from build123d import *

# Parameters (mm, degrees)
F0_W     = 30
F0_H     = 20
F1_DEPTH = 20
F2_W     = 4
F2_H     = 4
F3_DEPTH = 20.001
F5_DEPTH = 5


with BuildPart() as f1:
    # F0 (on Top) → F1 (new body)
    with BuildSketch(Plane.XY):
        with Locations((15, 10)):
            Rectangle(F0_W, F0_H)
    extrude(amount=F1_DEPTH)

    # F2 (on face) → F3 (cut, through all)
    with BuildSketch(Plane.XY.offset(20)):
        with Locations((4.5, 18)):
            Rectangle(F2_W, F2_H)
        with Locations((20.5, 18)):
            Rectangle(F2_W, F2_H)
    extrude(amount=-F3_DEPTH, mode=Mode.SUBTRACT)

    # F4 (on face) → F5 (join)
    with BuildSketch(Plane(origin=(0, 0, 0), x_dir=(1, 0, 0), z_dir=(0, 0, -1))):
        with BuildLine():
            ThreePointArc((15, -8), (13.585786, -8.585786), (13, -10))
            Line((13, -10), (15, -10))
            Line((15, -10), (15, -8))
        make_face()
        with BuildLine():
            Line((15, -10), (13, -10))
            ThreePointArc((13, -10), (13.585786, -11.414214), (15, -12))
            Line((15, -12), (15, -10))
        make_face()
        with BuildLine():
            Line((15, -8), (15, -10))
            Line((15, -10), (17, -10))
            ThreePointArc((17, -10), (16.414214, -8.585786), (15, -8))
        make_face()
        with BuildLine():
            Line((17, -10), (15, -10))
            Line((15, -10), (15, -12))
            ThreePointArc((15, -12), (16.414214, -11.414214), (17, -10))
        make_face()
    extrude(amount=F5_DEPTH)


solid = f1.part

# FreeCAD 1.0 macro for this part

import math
import FreeCAD as App
import Part
import Sketcher
from FreeCAD import Vector
Q = App.Units.Quantity


def add_polygon(sketch, points):
    """Adds a closed chain of lines whose ends are joined by coincident constraints."""
    first, n = sketch.GeometryCount, len(points)
    for a, b in zip(points, points[1:] + points[:1]):
        sketch.addGeometry(Part.LineSegment(App.Vector(*a, 0), App.Vector(*b, 0)), False)
    for i in range(n):
        sketch.addConstraint(Sketcher.Constraint("Coincident", first + i, 2, first + (i + 1) % n, 1))

doc = App.newDocument("Part")
body = doc.addObject("PartDesign::Body", "Body")

sketch1 = body.newObject("Sketcher::SketchObject", "Sketch")
sketch1.AttachmentSupport = (doc.getObject("XY_Plane"), [""])
sketch1.MapMode = "FlatFace"
add_polygon(sketch1, [(0, 20), (0, 0), (30, 0), (30, 20)])
sketch1.addConstraint([
    Sketcher.Constraint("Vertical", 0),
    Sketcher.Constraint("Horizontal", 1),
    Sketcher.Constraint("Vertical", 2),
    Sketcher.Constraint("Horizontal", 3),
    Sketcher.Constraint("Coincident", 0, 2, -1, 1),
    Sketcher.Constraint("DistanceX", 1, 1, 1, 2, Q("30 mm")),
    Sketcher.Constraint("DistanceY", 0, 2, 0, 1, Q("20 mm")),
])
pad1 = body.newObject("PartDesign::Pad", "Pad")
pad1.Profile = sketch1
pad1.Length = 20

sketch2 = body.newObject("Sketcher::SketchObject", "Sketch001")
sketch2.AttachmentSupport = (doc.getObject("XY_Plane"), [""])
sketch2.MapMode = "FlatFace"
sketch2.AttachmentOffset = App.Placement(Vector(0, 0, 20), App.Rotation())
add_polygon(sketch2, [(2.5, 20), (2.5, 16), (6.5, 16), (6.5, 20)])
add_polygon(sketch2, [(18.5, 20), (18.5, 16), (22.5, 16), (22.5, 20)])
sketch2.addConstraint([
    Sketcher.Constraint("Vertical", 0),
    Sketcher.Constraint("Horizontal", 1),
    Sketcher.Constraint("Vertical", 2),
    Sketcher.Constraint("Horizontal", 3),
    Sketcher.Constraint("Vertical", 4),
    Sketcher.Constraint("Horizontal", 5),
    Sketcher.Constraint("Vertical", 6),
    Sketcher.Constraint("Horizontal", 7),
    Sketcher.Constraint("Horizontal", 1, 2, 4, 2),
    Sketcher.Constraint("Horizontal", 3, 2, 6, 2),
    Sketcher.Constraint("Equal", 3, 5),
    Sketcher.Constraint("Equal", 7, 0),
    Sketcher.Constraint("DistanceX", 1, 1, 1, 2, Q("4 mm")),
    Sketcher.Constraint("DistanceY", -1, 1, 0, 2, Q("16 mm")),
    Sketcher.Constraint("DistanceX", 1, 2, 4, 2, Q("12 mm")),
    Sketcher.Constraint("DistanceX", -1, 1, 0, 2, Q("2.5 mm")),
])
pocket1 = body.newObject("PartDesign::Pocket", "Pocket")
pocket1.Profile = sketch2
pocket1.Type = "ThroughAll"

sketch3 = body.newObject("Sketcher::SketchObject", "Sketch002")
sketch3.AttachmentSupport = (doc.getObject("XY_Plane"), [""])
sketch3.MapMode = "FlatFace"
sketch3.addGeometry([
    Part.ArcOfCircle(Part.Circle(Vector(14.999999, 9.999999, 0), Vector(0, 0, 1), 1.999999), math.radians(179.999957), math.radians(270.000043)),
    Part.ArcOfCircle(Part.Circle(Vector(14.999999, 10.000001, 0), Vector(0, 0, 1), 1.999999), math.radians(89.999957), math.radians(180.000043)),
    Part.ArcOfCircle(Part.Circle(Vector(15.000001, 10.000001, 0), Vector(0, 0, 1), 1.999999), math.radians(-0.000043), math.radians(90.000043)),
    Part.ArcOfCircle(Part.Circle(Vector(15.000001, 9.999999, 0), Vector(0, 0, 1), 1.999999), math.radians(-90.000043), math.radians(0.000043)),
], False)
sketch3.addConstraint([
    Sketcher.Constraint("Tangent", 0, 1, 1, 2),
    Sketcher.Constraint("Tangent", 1, 1, 2, 2),
    Sketcher.Constraint("Tangent", 2, 1, 3, 2),
    Sketcher.Constraint("Tangent", 3, 1, 0, 2),
    Sketcher.Constraint("Equal", 0, 1),
    Sketcher.Constraint("Horizontal", 3, 3, 0, 1),
    Sketcher.Constraint("Horizontal", 0, 1, 2, 1),
    Sketcher.Constraint("Vertical", 3, 3, 1, 1),
    Sketcher.Constraint("Vertical", 1, 1, 3, 1),
    Sketcher.Constraint("Radius", 0, Q("1.999999 mm")),
    Sketcher.Constraint("DistanceX", -1, 1, 0, 3, Q("14.999999 mm")),
    Sketcher.Constraint("DistanceY", -1, 1, 0, 3, Q("9.999999 mm")),
])
pad2 = body.newObject("PartDesign::Pad", "Pad001")
pad2.Profile = sketch3
pad2.Length = 5
pad2.Reversed = True

doc.recompute()
